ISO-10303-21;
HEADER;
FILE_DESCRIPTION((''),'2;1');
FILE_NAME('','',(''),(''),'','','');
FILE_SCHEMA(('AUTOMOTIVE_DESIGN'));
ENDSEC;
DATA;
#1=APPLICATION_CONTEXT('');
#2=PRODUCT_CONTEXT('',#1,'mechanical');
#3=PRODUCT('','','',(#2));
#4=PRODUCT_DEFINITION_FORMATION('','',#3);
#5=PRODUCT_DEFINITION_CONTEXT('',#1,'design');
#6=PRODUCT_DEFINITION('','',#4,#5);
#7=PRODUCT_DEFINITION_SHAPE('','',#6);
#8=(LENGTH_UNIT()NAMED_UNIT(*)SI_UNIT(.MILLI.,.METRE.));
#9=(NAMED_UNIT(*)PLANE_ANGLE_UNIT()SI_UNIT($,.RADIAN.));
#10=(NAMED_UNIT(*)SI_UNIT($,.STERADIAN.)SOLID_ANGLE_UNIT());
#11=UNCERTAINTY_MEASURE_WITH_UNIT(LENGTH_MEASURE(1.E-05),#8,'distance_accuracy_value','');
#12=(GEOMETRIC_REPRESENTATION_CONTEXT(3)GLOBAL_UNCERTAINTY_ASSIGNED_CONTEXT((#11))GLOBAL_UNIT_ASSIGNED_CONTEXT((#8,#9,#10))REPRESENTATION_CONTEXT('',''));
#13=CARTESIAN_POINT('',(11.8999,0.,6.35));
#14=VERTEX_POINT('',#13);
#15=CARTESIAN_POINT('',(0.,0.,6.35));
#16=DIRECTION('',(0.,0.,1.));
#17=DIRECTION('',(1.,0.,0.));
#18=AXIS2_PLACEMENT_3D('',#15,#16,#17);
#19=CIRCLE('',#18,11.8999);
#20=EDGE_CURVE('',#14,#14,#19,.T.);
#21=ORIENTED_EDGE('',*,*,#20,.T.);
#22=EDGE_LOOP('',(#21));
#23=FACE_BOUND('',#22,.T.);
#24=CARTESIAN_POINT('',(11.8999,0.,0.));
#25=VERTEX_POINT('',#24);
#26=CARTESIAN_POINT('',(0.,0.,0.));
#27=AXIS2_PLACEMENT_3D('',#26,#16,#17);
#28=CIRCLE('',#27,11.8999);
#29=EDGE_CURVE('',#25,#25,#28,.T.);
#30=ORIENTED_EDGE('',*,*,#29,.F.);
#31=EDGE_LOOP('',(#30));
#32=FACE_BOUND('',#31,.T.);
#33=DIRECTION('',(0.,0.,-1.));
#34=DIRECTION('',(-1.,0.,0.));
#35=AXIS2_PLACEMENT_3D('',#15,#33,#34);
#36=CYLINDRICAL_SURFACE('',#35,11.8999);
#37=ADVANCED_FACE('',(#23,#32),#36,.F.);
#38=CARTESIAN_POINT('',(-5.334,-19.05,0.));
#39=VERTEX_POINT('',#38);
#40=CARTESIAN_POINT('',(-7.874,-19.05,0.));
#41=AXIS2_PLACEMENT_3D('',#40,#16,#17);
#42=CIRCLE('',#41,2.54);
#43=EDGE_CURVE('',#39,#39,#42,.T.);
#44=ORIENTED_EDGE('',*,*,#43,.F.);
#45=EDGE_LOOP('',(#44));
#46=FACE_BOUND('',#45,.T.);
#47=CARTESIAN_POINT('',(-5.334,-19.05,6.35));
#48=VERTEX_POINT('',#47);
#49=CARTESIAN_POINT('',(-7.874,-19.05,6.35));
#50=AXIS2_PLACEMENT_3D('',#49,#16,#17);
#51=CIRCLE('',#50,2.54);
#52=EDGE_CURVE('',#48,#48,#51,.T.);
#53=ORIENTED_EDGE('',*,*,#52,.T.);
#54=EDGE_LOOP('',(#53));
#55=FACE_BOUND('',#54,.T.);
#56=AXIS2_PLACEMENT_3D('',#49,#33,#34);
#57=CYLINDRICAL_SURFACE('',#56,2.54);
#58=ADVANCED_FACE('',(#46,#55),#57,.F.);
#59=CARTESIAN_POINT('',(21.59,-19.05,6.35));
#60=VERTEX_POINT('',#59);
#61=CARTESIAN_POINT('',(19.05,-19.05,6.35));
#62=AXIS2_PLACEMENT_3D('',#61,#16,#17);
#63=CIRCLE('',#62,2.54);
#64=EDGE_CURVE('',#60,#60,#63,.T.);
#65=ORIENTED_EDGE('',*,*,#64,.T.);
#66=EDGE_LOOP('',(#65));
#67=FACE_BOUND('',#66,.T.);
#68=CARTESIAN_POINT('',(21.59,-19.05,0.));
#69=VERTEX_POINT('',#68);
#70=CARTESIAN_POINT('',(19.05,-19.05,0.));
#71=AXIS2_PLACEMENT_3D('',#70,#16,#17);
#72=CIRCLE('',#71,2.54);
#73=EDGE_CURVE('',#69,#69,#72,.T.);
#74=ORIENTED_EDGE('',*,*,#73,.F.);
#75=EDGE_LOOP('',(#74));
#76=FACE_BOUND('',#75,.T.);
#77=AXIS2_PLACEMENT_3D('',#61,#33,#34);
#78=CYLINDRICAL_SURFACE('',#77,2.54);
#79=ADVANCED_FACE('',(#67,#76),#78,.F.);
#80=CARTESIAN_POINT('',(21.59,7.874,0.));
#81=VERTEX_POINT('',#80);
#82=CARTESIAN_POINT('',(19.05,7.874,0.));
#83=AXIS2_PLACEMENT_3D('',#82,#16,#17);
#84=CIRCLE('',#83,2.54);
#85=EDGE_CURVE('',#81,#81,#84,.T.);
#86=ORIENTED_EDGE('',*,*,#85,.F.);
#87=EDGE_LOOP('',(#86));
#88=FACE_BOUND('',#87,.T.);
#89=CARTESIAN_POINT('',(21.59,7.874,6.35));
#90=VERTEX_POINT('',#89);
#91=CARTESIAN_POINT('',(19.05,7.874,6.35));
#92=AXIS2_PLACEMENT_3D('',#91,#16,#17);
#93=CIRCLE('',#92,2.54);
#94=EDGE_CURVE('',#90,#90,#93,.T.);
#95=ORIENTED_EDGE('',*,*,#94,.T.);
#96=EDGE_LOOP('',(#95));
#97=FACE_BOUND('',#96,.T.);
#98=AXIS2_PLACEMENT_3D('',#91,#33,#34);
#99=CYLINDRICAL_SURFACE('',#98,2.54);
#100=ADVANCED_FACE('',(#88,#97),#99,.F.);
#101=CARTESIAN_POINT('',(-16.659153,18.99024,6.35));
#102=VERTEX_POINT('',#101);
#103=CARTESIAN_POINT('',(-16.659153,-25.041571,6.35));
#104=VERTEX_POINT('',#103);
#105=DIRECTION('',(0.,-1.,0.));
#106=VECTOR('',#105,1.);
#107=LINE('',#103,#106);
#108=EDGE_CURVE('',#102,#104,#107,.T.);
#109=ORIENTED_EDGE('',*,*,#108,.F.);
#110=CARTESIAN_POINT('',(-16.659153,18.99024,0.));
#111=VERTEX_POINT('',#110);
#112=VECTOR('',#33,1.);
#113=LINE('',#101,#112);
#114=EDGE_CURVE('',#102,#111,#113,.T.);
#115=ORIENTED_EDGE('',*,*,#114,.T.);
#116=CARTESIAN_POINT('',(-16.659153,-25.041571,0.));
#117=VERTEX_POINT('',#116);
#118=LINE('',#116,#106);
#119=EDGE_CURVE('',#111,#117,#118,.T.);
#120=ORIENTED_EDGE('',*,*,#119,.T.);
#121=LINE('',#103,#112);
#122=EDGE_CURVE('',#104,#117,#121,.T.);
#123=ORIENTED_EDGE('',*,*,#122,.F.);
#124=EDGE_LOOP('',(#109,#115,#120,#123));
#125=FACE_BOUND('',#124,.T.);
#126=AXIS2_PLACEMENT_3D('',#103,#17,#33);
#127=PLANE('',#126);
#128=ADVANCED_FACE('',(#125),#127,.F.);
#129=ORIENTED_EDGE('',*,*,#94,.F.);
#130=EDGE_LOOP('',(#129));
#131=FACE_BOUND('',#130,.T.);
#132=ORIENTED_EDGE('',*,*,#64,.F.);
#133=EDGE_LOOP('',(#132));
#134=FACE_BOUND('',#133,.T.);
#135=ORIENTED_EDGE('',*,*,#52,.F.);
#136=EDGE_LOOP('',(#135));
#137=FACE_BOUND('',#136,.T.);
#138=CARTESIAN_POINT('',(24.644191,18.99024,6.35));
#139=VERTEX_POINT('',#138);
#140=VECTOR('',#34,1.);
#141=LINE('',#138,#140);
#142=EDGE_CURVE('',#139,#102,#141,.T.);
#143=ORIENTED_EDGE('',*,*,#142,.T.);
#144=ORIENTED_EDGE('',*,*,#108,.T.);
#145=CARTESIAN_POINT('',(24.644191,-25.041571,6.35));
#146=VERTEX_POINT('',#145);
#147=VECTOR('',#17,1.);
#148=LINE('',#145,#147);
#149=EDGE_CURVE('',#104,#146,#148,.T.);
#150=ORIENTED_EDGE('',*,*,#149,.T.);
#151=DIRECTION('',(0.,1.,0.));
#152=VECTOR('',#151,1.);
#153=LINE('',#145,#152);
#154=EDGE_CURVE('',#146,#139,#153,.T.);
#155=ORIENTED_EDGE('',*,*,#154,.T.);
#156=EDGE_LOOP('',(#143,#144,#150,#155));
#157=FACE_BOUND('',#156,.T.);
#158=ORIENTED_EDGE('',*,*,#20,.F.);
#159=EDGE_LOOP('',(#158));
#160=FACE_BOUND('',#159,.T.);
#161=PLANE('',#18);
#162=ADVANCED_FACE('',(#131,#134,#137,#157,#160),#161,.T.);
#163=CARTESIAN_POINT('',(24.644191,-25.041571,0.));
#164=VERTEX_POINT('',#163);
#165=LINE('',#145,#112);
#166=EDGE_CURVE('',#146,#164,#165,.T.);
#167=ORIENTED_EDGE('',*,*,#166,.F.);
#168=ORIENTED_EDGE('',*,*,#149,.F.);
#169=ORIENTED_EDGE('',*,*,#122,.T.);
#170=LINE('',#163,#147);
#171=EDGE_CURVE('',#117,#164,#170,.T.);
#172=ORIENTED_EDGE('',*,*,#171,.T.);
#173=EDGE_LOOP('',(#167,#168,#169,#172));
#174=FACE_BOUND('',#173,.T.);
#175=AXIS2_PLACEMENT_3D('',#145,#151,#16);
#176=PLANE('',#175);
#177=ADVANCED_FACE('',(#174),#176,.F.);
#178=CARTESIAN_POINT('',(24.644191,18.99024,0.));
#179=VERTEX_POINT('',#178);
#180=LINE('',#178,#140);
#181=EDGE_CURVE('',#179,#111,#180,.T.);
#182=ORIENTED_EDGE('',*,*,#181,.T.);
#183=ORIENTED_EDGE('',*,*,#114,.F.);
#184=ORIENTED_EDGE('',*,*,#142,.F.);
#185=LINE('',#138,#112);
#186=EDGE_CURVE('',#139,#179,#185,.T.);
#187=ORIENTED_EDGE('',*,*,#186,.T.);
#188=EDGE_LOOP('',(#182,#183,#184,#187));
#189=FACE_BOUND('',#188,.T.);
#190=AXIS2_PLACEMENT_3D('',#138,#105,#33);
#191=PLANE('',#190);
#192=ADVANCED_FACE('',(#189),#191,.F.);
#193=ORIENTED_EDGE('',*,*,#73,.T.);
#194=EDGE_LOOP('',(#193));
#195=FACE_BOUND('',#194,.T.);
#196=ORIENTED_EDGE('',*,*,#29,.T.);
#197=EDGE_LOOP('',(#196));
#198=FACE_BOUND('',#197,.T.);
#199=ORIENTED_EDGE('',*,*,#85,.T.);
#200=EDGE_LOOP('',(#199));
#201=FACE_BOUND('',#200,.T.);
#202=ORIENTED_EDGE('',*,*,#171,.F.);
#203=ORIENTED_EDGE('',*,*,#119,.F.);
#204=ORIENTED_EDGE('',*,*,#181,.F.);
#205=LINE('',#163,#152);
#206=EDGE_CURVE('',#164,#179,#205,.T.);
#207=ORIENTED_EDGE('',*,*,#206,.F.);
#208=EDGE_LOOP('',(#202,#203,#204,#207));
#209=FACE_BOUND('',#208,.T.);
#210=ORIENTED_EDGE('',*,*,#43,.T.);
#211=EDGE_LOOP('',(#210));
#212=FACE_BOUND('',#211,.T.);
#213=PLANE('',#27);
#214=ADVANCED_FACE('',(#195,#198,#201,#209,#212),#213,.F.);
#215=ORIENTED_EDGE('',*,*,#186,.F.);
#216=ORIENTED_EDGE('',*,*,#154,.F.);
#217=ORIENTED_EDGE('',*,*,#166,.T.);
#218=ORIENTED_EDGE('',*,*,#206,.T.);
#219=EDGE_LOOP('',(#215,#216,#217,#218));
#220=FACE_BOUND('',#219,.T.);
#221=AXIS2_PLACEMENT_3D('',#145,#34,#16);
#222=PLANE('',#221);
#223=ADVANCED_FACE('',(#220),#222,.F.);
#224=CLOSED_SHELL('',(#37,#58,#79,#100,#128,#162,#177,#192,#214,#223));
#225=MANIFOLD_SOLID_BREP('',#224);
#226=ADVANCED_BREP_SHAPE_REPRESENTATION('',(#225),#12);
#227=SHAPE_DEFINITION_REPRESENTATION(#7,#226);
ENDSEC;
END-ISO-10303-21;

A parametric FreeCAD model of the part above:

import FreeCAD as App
import Part
import Sketcher

V = App.Vector
Q = App.Units.Quantity


def add_polygon(sketch, points):
    """Adds a closed chain of lines whose ends are joined by coincident constraints."""
    first, n = sketch.GeometryCount, len(points)
    for a, b in zip(points, points[1:] + points[:1]):
        sketch.addGeometry(Part.LineSegment(App.Vector(*a, 0), App.Vector(*b, 0)), False)
    for i in range(n):
        sketch.addConstraint(Sketcher.Constraint("Coincident", first + i, 2, first + (i + 1) % n, 1))

doc = App.newDocument("Part")
body = doc.addObject("PartDesign::Body", "Body")

sketch1 = body.newObject("Sketcher::SketchObject", "Sketch")
sketch1.AttachmentSupport = (doc.getObject("XY_Plane"), [""])
sketch1.MapMode = "FlatFace"
add_polygon(sketch1, [(-16.659153, 18.99024), (-16.659153, -25.041571), (24.644191, -25.041571), (24.644191, 18.99024)])
sketch1.addGeometry(Part.Circle(V(-7.874, -19.05, 0), V(0, 0, 1), 2.54), False)
sketch1.addGeometry(Part.Circle(V(19.05, -19.05, 0), V(0, 0, 1), 2.54), False)
sketch1.addGeometry(Part.Circle(V(0, 0, 0), V(0, 0, 1), 11.8999), False)
sketch1.addGeometry(Part.Circle(V(19.05, 7.874, 0), V(0, 0, 1), 2.54), False)
sketch1.addConstraint(Sketcher.Constraint("Vertical", 0))
sketch1.addConstraint(Sketcher.Constraint("Horizontal", 1))
sketch1.addConstraint(Sketcher.Constraint("Vertical", 2))
sketch1.addConstraint(Sketcher.Constraint("Horizontal", 3))
sketch1.addConstraint(Sketcher.Constraint("Coincident", 6, 3, -1, 1))
sketch1.addConstraint(Sketcher.Constraint("Equal", 4, 5))
sketch1.addConstraint(Sketcher.Constraint("Equal", 5, 7))
sketch1.addConstraint(Sketcher.Constraint("Horizontal", 4, 3, 5, 3))
sketch1.addConstraint(Sketcher.Constraint("Vertical", 5, 3, 7, 3))
sketch1.addConstraint(Sketcher.Constraint("Diameter", 4, Q("0.2 in")))
sketch1.addConstraint(Sketcher.Constraint("Diameter", 6, Q("0.937 in")))
sketch1.addConstraint(Sketcher.Constraint("DistanceX", 4, 3, -1, 1, Q("0.31 in")))
sketch1.addConstraint(Sketcher.Constraint("DistanceY", 4, 3, -1, 1, Q("0.75 in")))
sketch1.addConstraint(Sketcher.Constraint("DistanceX", -1, 1, 5, 3, Q("0.75 in")))
sketch1.addConstraint(Sketcher.Constraint("DistanceY", -1, 1, 7, 3, Q("0.31 in")))
sketch1.addConstraint(Sketcher.Constraint("DistanceY", 0, 2, 0, 1, Q("44.031811 mm")))
sketch1.addConstraint(Sketcher.Constraint("DistanceX", 1, 1, 1, 2, Q("41.303344 mm")))
sketch1.addConstraint(Sketcher.Constraint("DistanceY", 0, 2, -1, 1, Q("25.041571 mm")))
sketch1.addConstraint(Sketcher.Constraint("DistanceX", -1, 1, 1, 2, Q("24.644191 mm")))
pad1 = body.newObject("PartDesign::Pad", "Pad")
pad1.Profile = sketch1
pad1.Length = Q("0.25 in")

doc.recompute()
